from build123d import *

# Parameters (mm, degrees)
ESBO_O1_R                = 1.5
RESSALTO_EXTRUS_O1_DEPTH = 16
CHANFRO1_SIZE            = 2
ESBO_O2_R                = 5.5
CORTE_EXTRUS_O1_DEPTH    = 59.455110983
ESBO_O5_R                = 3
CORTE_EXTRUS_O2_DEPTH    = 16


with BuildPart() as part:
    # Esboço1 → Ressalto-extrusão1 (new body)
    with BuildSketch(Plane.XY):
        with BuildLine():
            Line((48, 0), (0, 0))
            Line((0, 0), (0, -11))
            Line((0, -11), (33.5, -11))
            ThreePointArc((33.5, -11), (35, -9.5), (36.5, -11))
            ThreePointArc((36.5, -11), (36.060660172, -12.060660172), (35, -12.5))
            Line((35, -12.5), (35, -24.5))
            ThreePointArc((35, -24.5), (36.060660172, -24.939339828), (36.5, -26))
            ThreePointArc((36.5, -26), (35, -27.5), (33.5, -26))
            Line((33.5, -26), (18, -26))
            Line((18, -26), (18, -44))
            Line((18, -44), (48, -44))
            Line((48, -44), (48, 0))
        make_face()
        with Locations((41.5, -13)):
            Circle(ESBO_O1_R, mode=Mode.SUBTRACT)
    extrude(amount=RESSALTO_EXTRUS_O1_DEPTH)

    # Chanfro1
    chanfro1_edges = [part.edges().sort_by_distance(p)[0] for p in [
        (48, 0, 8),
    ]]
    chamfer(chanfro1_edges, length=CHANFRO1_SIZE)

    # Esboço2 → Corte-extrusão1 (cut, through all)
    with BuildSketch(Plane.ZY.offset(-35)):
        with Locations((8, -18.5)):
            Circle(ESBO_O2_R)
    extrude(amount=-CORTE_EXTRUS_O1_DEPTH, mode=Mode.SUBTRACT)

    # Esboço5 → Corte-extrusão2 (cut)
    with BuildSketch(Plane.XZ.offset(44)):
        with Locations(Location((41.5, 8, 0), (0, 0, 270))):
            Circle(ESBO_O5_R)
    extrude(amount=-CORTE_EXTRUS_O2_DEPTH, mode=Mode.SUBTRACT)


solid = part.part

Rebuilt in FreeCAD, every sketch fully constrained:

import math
import FreeCAD as App
import Part
import Sketcher

V = App.Vector
Q = App.Units.Quantity


def edges_at(feature, points):
    """Names of the edges that pass closest to the given points."""
    edges = feature.Shape.Edges
    near = lambda p: min(range(len(edges)), key=lambda i: edges[i].distToShape(Part.Vertex(*p))[0])
    return sorted({f"Edge{near(p) + 1}" for p in points})

doc = App.newDocument("Part")
body = doc.addObject("PartDesign::Body", "Body")

# Sketch on XY plane
sketch1 = body.newObject("Sketcher::SketchObject", "Sketch")
sketch1.AttachmentSupport = (doc.getObject("XY_Plane"), [""])
sketch1.MapMode = "FlatFace"
sketch1.addGeometry([
    Part.LineSegment(V(48, 0, 0), V(0, 0, 0)),  # 0
    Part.LineSegment(V(0, 0, 0), V(0, -11, 0)),  # 1
    Part.LineSegment(V(0, -11, 0), V(33.5, -11, 0)),  # 2
    Part.ArcOfCircle(Part.Circle(V(35, -11, 0), V(0, 0, 1), 1.5), math.radians(0), math.radians(180)),  # 3
    Part.ArcOfCircle(Part.Circle(V(35, -11, 0), V(0, 0, 1), 1.5), math.radians(-90), math.radians(0)),  # 4
    Part.LineSegment(V(35, -12.5, 0), V(35, -24.5, 0)),  # 5
    Part.ArcOfCircle(Part.Circle(V(35, -26, 0), V(0, 0, 1), 1.5), math.radians(0), math.radians(90)),  # 6
    Part.ArcOfCircle(Part.Circle(V(35, -26, 0), V(0, 0, 1), 1.5), math.radians(180), math.radians(360)),  # 7
    Part.LineSegment(V(33.5, -26, 0), V(18, -26, 0)),  # 8
    Part.LineSegment(V(18, -26, 0), V(18, -44, 0)),  # 9
    Part.LineSegment(V(18, -44, 0), V(48, -44, 0)),  # 10
    Part.LineSegment(V(48, -44, 0), V(48, 0, 0)),  # 11
    Part.Circle(V(41.5, -13, 0), V(0, 0, 1), 1.5),  # 12
], False)
sketch1.addConstraint([
    Sketcher.Constraint("Coincident", 0, 2, 1, 1),
    Sketcher.Constraint("Coincident", 1, 2, 2, 1),
    Sketcher.Constraint("Coincident", 2, 2, 3, 2),
    Sketcher.Constraint("Tangent", 3, 1, 4, 2),
    Sketcher.Constraint("Coincident", 4, 1, 5, 1),
    Sketcher.Constraint("Coincident", 5, 2, 6, 2),
    Sketcher.Constraint("Tangent", 6, 1, 7, 2),
    Sketcher.Constraint("Coincident", 7, 1, 8, 1),
    Sketcher.Constraint("Coincident", 8, 2, 9, 1),
    Sketcher.Constraint("Coincident", 9, 2, 10, 1),
    Sketcher.Constraint("Coincident", 10, 2, 11, 1),
    Sketcher.Constraint("Coincident", 11, 2, 0, 1),
    Sketcher.Constraint("Horizontal", 0),
    Sketcher.Constraint("Vertical", 1),
    Sketcher.Constraint("Horizontal", 2),
    Sketcher.Constraint("Vertical", 5),
    Sketcher.Constraint("Horizontal", 8),
    Sketcher.Constraint("Vertical", 9),
    Sketcher.Constraint("Horizontal", 10),
    Sketcher.Constraint("Vertical", 11),
    Sketcher.Constraint("Coincident", 0, 2, -1, 1),
    Sketcher.Constraint("Equal", 3, 4),
    Sketcher.Constraint("Equal", 4, 6),
    Sketcher.Constraint("Equal", 6, 7),
    Sketcher.Constraint("Equal", 7, 12),
    Sketcher.Constraint("Horizontal", 4, 3, 1, 2),
    Sketcher.Constraint("Horizontal", 2, 2, 3, 1),
    Sketcher.Constraint("Horizontal", 7, 3, 6, 1),
    Sketcher.Constraint("Horizontal", 6, 1, 7, 1),
    Sketcher.Constraint("Vertical", 4, 3, 6, 3),
    Sketcher.Constraint("Vertical", 7, 3, 4, 1),
    Sketcher.Constraint("Diameter", 12, Q("3 mm")),
    Sketcher.Constraint("DistanceX", 0, 2, 0, 1, Q("48 mm")),
    Sketcher.Constraint("DistanceX", 10, 1, 10, 2, Q("30 mm")),
    Sketcher.Constraint("DistanceY", 1, 2, 1, 1, Q("11 mm")),
    Sketcher.Constraint("DistanceY", 5, 2, 5, 1, Q("12 mm")),
    Sketcher.Constraint("DistanceY", 9, 2, 9, 1, Q("18 mm")),
    Sketcher.Constraint("DistanceX", 2, 1, 2, 2, Q("33.5 mm")),
    Sketcher.Constraint("DistanceY", 12, 3, -1, 1, Q("13 mm")),
    Sketcher.Constraint("DistanceX", 2, 2, 12, 3, Q("8 mm")),
])
pad1 = body.newObject("PartDesign::Pad", "Pad")
pad1.Profile = sketch1
pad1.Length = 16
doc.recompute()

chamfer = body.newObject("PartDesign::Chamfer", "Chamfer")
chamfer.Base = (pad1, edges_at(pad1, [(48, 0, 8)]))
chamfer.Size = 2

# Sketch on YZ plane
sketch2 = body.newObject("Sketcher::SketchObject", "Sketch001")
sketch2.AttachmentSupport = (doc.getObject("YZ_Plane"), [""])
sketch2.MapMode = "FlatFace"
sketch2.AttachmentOffset = App.Placement(V(0, 0, 35), App.Rotation())
sketch2.addGeometry(Part.Circle(V(-18, 8, 0), V(0, 0, 1), 6), False)
sketch2.addConstraint([
    Sketcher.Constraint("Diameter", 0, Q("11 mm")),
    Sketcher.Constraint("DistanceY", -1, 1, 0, 3, Q("8 mm")),
    Sketcher.Constraint("DistanceX", 0, 3, -1, 1, Q("18.5 mm")),
])
pocket1 = body.newObject("PartDesign::Pocket", "Pocket")
pocket1.Profile = sketch2
pocket1.Type = "ThroughAll"
pocket1.Reversed = True

# Sketch on XZ plane
sketch3 = body.newObject("Sketcher::SketchObject", "Sketch002")
sketch3.AttachmentSupport = (doc.getObject("XZ_Plane"), [""])
sketch3.MapMode = "FlatFace"
sketch3.AttachmentOffset = App.Placement(V(0, 0, 44), App.Rotation())
sketch3.addGeometry(Part.Circle(V(41.5, 8, 0), V(0, 0, 1), 3), False)
sketch3.addConstraint([
    Sketcher.Constraint("Diameter", 0, Q("6 mm")),
    Sketcher.Constraint("DistanceY", -1, 1, 0, 3, Q("8 mm")),
    Sketcher.Constraint("DistanceX", -1, 1, 0, 3, Q("41.5 mm")),
])
pocket2 = body.newObject("PartDesign::Pocket", "Pocket001")
pocket2.Profile = sketch3
pocket2.Length = 16

doc.recompute()
